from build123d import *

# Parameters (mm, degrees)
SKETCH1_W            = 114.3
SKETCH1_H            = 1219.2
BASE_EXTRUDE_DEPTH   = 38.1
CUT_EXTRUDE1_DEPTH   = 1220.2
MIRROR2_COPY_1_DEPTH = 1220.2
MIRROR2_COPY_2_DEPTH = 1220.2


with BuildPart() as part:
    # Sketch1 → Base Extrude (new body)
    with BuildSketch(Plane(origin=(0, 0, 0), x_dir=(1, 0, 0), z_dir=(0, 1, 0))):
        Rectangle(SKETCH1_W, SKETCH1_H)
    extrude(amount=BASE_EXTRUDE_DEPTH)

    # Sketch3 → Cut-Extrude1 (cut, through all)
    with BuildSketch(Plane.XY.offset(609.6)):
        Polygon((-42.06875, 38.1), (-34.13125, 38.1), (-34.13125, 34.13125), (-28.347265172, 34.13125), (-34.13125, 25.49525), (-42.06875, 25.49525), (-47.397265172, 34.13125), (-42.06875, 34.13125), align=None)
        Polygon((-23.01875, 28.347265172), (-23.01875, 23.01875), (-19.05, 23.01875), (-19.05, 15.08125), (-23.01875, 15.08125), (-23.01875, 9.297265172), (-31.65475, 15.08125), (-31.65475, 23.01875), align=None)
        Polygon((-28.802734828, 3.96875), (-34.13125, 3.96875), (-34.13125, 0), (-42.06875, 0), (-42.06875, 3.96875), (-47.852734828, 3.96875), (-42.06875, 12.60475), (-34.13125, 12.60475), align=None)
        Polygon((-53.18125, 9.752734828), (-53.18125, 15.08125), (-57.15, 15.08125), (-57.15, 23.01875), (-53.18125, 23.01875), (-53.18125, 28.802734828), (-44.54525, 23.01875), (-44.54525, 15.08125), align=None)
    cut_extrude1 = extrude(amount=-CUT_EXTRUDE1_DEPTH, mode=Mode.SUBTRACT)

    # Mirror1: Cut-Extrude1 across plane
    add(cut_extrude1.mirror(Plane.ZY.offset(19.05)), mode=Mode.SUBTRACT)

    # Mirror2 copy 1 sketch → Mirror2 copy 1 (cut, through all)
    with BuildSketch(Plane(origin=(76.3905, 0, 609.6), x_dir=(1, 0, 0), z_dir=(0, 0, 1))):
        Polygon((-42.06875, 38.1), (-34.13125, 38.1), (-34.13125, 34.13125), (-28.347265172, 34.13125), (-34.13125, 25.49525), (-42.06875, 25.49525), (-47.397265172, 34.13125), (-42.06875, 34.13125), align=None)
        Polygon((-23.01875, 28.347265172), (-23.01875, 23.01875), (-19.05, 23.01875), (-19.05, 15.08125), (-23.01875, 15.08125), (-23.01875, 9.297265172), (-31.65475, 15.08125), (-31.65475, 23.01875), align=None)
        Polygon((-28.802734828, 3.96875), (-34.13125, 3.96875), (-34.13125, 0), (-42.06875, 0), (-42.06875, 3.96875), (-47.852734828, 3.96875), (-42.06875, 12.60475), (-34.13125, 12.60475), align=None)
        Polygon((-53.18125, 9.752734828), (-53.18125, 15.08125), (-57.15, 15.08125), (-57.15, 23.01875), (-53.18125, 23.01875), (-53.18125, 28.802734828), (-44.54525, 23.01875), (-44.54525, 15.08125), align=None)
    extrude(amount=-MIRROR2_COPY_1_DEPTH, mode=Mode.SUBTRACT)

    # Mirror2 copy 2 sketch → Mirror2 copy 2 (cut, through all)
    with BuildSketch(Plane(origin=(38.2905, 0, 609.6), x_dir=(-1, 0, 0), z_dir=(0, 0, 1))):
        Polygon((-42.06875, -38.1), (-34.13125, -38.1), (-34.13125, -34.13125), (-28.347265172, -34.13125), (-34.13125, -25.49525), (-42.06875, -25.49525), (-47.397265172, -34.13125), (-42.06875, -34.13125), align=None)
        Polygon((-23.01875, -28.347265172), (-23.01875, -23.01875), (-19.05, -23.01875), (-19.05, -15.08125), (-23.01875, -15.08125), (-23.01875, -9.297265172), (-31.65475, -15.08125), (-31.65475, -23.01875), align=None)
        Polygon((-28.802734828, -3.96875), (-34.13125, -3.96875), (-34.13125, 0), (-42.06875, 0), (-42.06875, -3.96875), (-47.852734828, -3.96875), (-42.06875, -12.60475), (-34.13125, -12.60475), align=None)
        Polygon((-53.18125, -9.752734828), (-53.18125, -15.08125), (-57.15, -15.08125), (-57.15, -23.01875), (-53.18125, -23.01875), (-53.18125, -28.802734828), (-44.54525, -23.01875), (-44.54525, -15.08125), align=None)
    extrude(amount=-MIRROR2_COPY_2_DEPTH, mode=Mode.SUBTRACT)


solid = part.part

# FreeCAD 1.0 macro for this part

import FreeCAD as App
import Part
import Sketcher

V = App.Vector
Q = App.Units.Quantity

doc = App.newDocument("Part")
body = doc.addObject("PartDesign::Body", "Body")

# Sketch on XZ plane
sketch1 = body.newObject("Sketcher::SketchObject", "Sketch")
sketch1.AttachmentSupport = (doc.getObject("XZ_Plane"), [""])
sketch1.MapMode = "FlatFace"
sketch1.addGeometry(Part.LineSegment(V(-57, -610, 0), V(-57, 610, 0)), False)
sketch1.addGeometry(Part.LineSegment(V(-57, 610, 0), V(57, 610, 0)), False)
sketch1.addGeometry(Part.LineSegment(V(57, 610, 0), V(57, -610, 0)), False)
sketch1.addGeometry(Part.LineSegment(V(57, -610, 0), V(-57, -610, 0)), False)
sketch1.addConstraint(Sketcher.Constraint("Coincident", 0, 2, 1, 1))
sketch1.addConstraint(Sketcher.Constraint("Coincident", 1, 2, 2, 1))
sketch1.addConstraint(Sketcher.Constraint("Coincident", 2, 2, 3, 1))
sketch1.addConstraint(Sketcher.Constraint("Coincident", 3, 2, 0, 1))
sketch1.addConstraint(Sketcher.Constraint("Vertical", 0))
sketch1.addConstraint(Sketcher.Constraint("Horizontal", 1))
sketch1.addConstraint(Sketcher.Constraint("Vertical", 2))
sketch1.addConstraint(Sketcher.Constraint("Horizontal", 3))
sketch1.addConstraint(Sketcher.Constraint("Symmetric", 0, 2, 2, 2, -1, 1))
sketch1.addConstraint(Sketcher.Constraint("DistanceY", 0, 1, 0, 2, Q("48 in")))
sketch1.addConstraint(Sketcher.Constraint("DistanceX", 1, 1, 1, 2, Q("4.5 in")))
pad1 = body.newObject("PartDesign::Pad", "Pad")
pad1.Profile = sketch1
pad1.Length = Q("1.5 in")
pad1.Reversed = True

# Sketch on XY plane
sketch2 = body.newObject("Sketcher::SketchObject", "Sketch001")
sketch2.AttachmentSupport = (doc.getObject("XY_Plane"), [""])
sketch2.MapMode = "FlatFace"
sketch2.AttachmentOffset = App.Placement(V(0, 0, 24 * 25.4), App.Rotation())
sketch2.addGeometry(Part.LineSegment(V(-34.1, 38.1, 0), V(-42.1, 38.1, 0)), False)
sketch2.addGeometry(Part.LineSegment(V(-42.1, 38.1, 0), V(-42.1, 34.1, 0)), False)
sketch2.addGeometry(Part.LineSegment(V(-42.1, 34.1, 0), V(-47.4, 34.1, 0)), False)
sketch2.addGeometry(Part.LineSegment(V(-47.4, 34.1, 0), V(-42.1, 25.5, 0)), False)
sketch2.addGeometry(Part.LineSegment(V(-42.1, 25.5, 0), V(-34.1, 25.5, 0)), False)
sketch2.addGeometry(Part.LineSegment(V(-34.1, 25.5, 0), V(-28.3, 34.1, 0)), False)
sketch2.addGeometry(Part.LineSegment(V(-28.3, 34.1, 0), V(-34.1, 34.1, 0)), False)
sketch2.addGeometry(Part.LineSegment(V(-34.1, 34.1, 0), V(-34.1, 38.1, 0)), False)
sketch2.addGeometry(Part.LineSegment(V(-23, 23, 0), V(-23, 28.3, 0)), False)
sketch2.addGeometry(Part.LineSegment(V(-23, 28.3, 0), V(-31.7, 23, 0)), False)
sketch2.addGeometry(Part.LineSegment(V(-31.7, 23, 0), V(-31.7, 15.1, 0)), False)
sketch2.addGeometry(Part.LineSegment(V(-31.7, 15.1, 0), V(-23, 9.3, 0)), False)
sketch2.addGeometry(Part.LineSegment(V(-23, 9.3, 0), V(-23, 15.1, 0)), False)
sketch2.addGeometry(Part.LineSegment(V(-23, 15.1, 0), V(-19.1, 15.1, 0)), False)
sketch2.addGeometry(Part.LineSegment(V(-19.1, 15.1, 0), V(-19.1, 23, 0)), False)
sketch2.addGeometry(Part.LineSegment(V(-19.1, 23, 0), V(-23, 23, 0)), False)
sketch2.addGeometry(Part.LineSegment(V(-34.1, 4, 0), V(-28.8, 4, 0)), False)
sketch2.addGeometry(Part.LineSegment(V(-28.8, 4, 0), V(-34.1, 12.6, 0)), False)
sketch2.addGeometry(Part.LineSegment(V(-34.1, 12.6, 0), V(-42.1, 12.6, 0)), False)
sketch2.addGeometry(Part.LineSegment(V(-42.1, 12.6, 0), V(-47.9, 4, 0)), False)
sketch2.addGeometry(Part.LineSegment(V(-47.9, 4, 0), V(-42.1, 4, 0)), False)
sketch2.addGeometry(Part.LineSegment(V(-42.1, 4, 0), V(-42.1, 0, 0)), False)
sketch2.addGeometry(Part.LineSegment(V(-42.1, 0, 0), V(-34.1, 0, 0)), False)
sketch2.addGeometry(Part.LineSegment(V(-34.1, 0, 0), V(-34.1, 4, 0)), False)
sketch2.addGeometry(Part.LineSegment(V(-53.2, 15.1, 0), V(-53.2, 9.8, 0)), False)
sketch2.addGeometry(Part.LineSegment(V(-53.2, 9.8, 0), V(-44.5, 15.1, 0)), False)
sketch2.addGeometry(Part.LineSegment(V(-44.5, 15.1, 0), V(-44.5, 23, 0)), False)
sketch2.addGeometry(Part.LineSegment(V(-44.5, 23, 0), V(-53.2, 28.8, 0)), False)
sketch2.addGeometry(Part.LineSegment(V(-53.2, 28.8, 0), V(-53.2, 23, 0)), False)
sketch2.addGeometry(Part.LineSegment(V(-53.2, 23, 0), V(-57.1, 23, 0)), False)
sketch2.addGeometry(Part.LineSegment(V(-57.1, 23, 0), V(-57.1, 15.1, 0)), False)
sketch2.addGeometry(Part.LineSegment(V(-57.1, 15.1, 0), V(-53.2, 15.1, 0)), False)
sketch2.addConstraint(Sketcher.Constraint("Coincident", 0, 2, 1, 1))
sketch2.addConstraint(Sketcher.Constraint("Coincident", 1, 2, 2, 1))
sketch2.addConstraint(Sketcher.Constraint("Coincident", 2, 2, 3, 1))
sketch2.addConstraint(Sketcher.Constraint("Coincident", 3, 2, 4, 1))
sketch2.addConstraint(Sketcher.Constraint("Coincident", 4, 2, 5, 1))
sketch2.addConstraint(Sketcher.Constraint("Coincident", 5, 2, 6, 1))
sketch2.addConstraint(Sketcher.Constraint("Coincident", 6, 2, 7, 1))
sketch2.addConstraint(Sketcher.Constraint("Coincident", 7, 2, 0, 1))
sketch2.addConstraint(Sketcher.Constraint("Coincident", 8, 2, 9, 1))
sketch2.addConstraint(Sketcher.Constraint("Coincident", 9, 2, 10, 1))
sketch2.addConstraint(Sketcher.Constraint("Coincident", 10, 2, 11, 1))
sketch2.addConstraint(Sketcher.Constraint("Coincident", 11, 2, 12, 1))
sketch2.addConstraint(Sketcher.Constraint("Coincident", 12, 2, 13, 1))
sketch2.addConstraint(Sketcher.Constraint("Coincident", 13, 2, 14, 1))
sketch2.addConstraint(Sketcher.Constraint("Coincident", 14, 2, 15, 1))
sketch2.addConstraint(Sketcher.Constraint("Coincident", 15, 2, 8, 1))
sketch2.addConstraint(Sketcher.Constraint("Coincident", 16, 2, 17, 1))
sketch2.addConstraint(Sketcher.Constraint("Coincident", 17, 2, 18, 1))
sketch2.addConstraint(Sketcher.Constraint("Coincident", 18, 2, 19, 1))
sketch2.addConstraint(Sketcher.Constraint("Coincident", 19, 2, 20, 1))
sketch2.addConstraint(Sketcher.Constraint("Coincident", 20, 2, 21, 1))
sketch2.addConstraint(Sketcher.Constraint("Coincident", 21, 2, 22, 1))
sketch2.addConstraint(Sketcher.Constraint("Coincident", 22, 2, 23, 1))
sketch2.addConstraint(Sketcher.Constraint("Coincident", 23, 2, 16, 1))
sketch2.addConstraint(Sketcher.Constraint("Coincident", 24, 2, 25, 1))
sketch2.addConstraint(Sketcher.Constraint("Coincident", 25, 2, 26, 1))
sketch2.addConstraint(Sketcher.Constraint("Coincident", 26, 2, 27, 1))
sketch2.addConstraint(Sketcher.Constraint("Coincident", 27, 2, 28, 1))
sketch2.addConstraint(Sketcher.Constraint("Coincident", 28, 2, 29, 1))
sketch2.addConstraint(Sketcher.Constraint("Coincident", 29, 2, 30, 1))
sketch2.addConstraint(Sketcher.Constraint("Coincident", 30, 2, 31, 1))
sketch2.addConstraint(Sketcher.Constraint("Coincident", 31, 2, 24, 1))
sketch2.addConstraint(Sketcher.Constraint("Horizontal", 0))
sketch2.addConstraint(Sketcher.Constraint("Vertical", 1))
sketch2.addConstraint(Sketcher.Constraint("Horizontal", 2))
sketch2.addConstraint(Sketcher.Constraint("Horizontal", 4))
sketch2.addConstraint(Sketcher.Constraint("Horizontal", 6))
sketch2.addConstraint(Sketcher.Constraint("Vertical", 7))
sketch2.addConstraint(Sketcher.Constraint("Vertical", 8))
sketch2.addConstraint(Sketcher.Constraint("Vertical", 10))
sketch2.addConstraint(Sketcher.Constraint("Vertical", 12))
sketch2.addConstraint(Sketcher.Constraint("Horizontal", 13))
sketch2.addConstraint(Sketcher.Constraint("Vertical", 14))
sketch2.addConstraint(Sketcher.Constraint("Horizontal", 15))
sketch2.addConstraint(Sketcher.Constraint("Horizontal", 16))
sketch2.addConstraint(Sketcher.Constraint("Horizontal", 18))
sketch2.addConstraint(Sketcher.Constraint("Horizontal", 20))
sketch2.addConstraint(Sketcher.Constraint("Vertical", 21))
sketch2.addConstraint(Sketcher.Constraint("Horizontal", 22))
sketch2.addConstraint(Sketcher.Constraint("Vertical", 23))
sketch2.addConstraint(Sketcher.Constraint("Vertical", 24))
sketch2.addConstraint(Sketcher.Constraint("Vertical", 26))
sketch2.addConstraint(Sketcher.Constraint("Vertical", 28))
sketch2.addConstraint(Sketcher.Constraint("Horizontal", 29))
sketch2.addConstraint(Sketcher.Constraint("Vertical", 30))
sketch2.addConstraint(Sketcher.Constraint("Horizontal", 31))
sketch2.addConstraint(Sketcher.Constraint("PointOnObject", 21, 2, -1))
sketch2.addConstraint(Sketcher.Constraint("Perpendicular", 3, 9))
sketch2.addConstraint(Sketcher.Constraint("Perpendicular", 5, 11))
sketch2.addConstraint(Sketcher.Constraint("Perpendicular", 9, 17))
sketch2.addConstraint(Sketcher.Constraint("Perpendicular", 11, 19))
sketch2.addConstraint(Sketcher.Constraint("Perpendicular", 17, 25))
sketch2.addConstraint(Sketcher.Constraint("Perpendicular", 19, 27))
sketch2.addConstraint(Sketcher.Constraint("Horizontal", 2, 2, 5, 2))
sketch2.addConstraint(Sketcher.Constraint("Horizontal", 10, 2, 12, 2))
sketch2.addConstraint(Sketcher.Constraint("Horizontal", 9, 2, 14, 2))
sketch2.addConstraint(Sketcher.Constraint("Horizontal", 16, 2, 19, 2))
sketch2.addConstraint(Sketcher.Constraint("Horizontal", 13, 2, 25, 2))
sketch2.addConstraint(Sketcher.Constraint("Horizontal", 15, 2, 26, 2))
sketch2.addConstraint(Sketcher.Constraint("Horizontal", 26, 2, 28, 2))
sketch2.addConstraint(Sketcher.Constraint("Horizontal", 25, 2, 30, 2))
sketch2.addConstraint(Sketcher.Constraint("Vertical", 1, 2, 3, 2))
sketch2.addConstraint(Sketcher.Constraint("Vertical", 4, 2, 6, 2))
sketch2.addConstraint(Sketcher.Constraint("Vertical", 8, 2, 11, 2))
sketch2.addConstraint(Sketcher.Constraint("Vertical", 7, 2, 17, 2))
sketch2.addConstraint(Sketcher.Constraint("Vertical", 3, 2, 18, 2))
sketch2.addConstraint(Sketcher.Constraint("Vertical", 18, 2, 20, 2))
sketch2.addConstraint(Sketcher.Constraint("Vertical", 17, 2, 22, 2))
sketch2.addConstraint(Sketcher.Constraint("Vertical", 24, 2, 27, 2))
sketch2.addConstraint(Sketcher.Constraint("Equal", 2, 16))
sketch2.addConstraint(Sketcher.Constraint("Equal", 15, 29))
sketch2.addConstraint(Sketcher.Constraint("Equal", 31, 1))
sketch2.addConstraint(Sketcher.Constraint("Equal", 16, 8))
sketch2.addConstraint(Sketcher.Constraint("Equal", 22, 10))
sketch2.addConstraint(Sketcher.Constraint("Equal", 7, 21))
sketch2.addConstraint(Sketcher.Constraint("Equal", 8, 24))
sketch2.addConstraint(Sketcher.Constraint("DistanceY", -1, 1, 0, 2, Q("1.5 in")))
sketch2.addConstraint(Sketcher.Constraint("DistanceX", 0, 2, 0, 1, Q("0.3125 in")))
sketch2.addConstraint(Sketcher.Constraint("DistanceX", 13, 1, 13, 2, Q("0.15625 in")))
sketch2.addConstraint(Sketcher.Constraint("DistanceX", 13, 2, -1, 1, Q("0.75 in")))
sketch2.addConstraint(Sketcher.Constraint("DistanceX", 29, 2, -1, 1, Q("2.25 in")))
sketch2.addConstraint(Sketcher.Constraint("DistanceY", 3, 2, 1, 2, Q("0.34 in")))
sketch2.addConstraint(Sketcher.Constraint("DistanceX", 2, 2, 5, 2, Q("0.75 in")))
sketch2.addConstraint(Sketcher.Constraint("DistanceX", 3, 2, 8, 2, Q("0.75 in")))
sketch2.addConstraint(Sketcher.Constraint("DistanceY", 10, 2, 4, 2, Q("0.41 in")))
sketch2.addConstraint(Sketcher.Constraint("Distance", 3, Q("10.147589 mm")))
pocket1 = body.newObject("PartDesign::Pocket", "Pocket")
pocket1.Profile = sketch2
pocket1.Type = "ThroughAll"
doc.recompute()

datumplane = body.newObject("PartDesign::Plane", "DatumPlane")
datumplane.AttachmentSupport = (doc.getObject("YZ_Plane"), [""])
datumplane.MapMode = "FlatFace"
datumplane.AttachmentOffset = App.Placement(V(0, 0, -0.75 * 25.4), App.Rotation())
mirrored = body.newObject("PartDesign::Mirrored", "Mirrored")
mirrored.Originals = [pocket1]
mirrored.MirrorPlane = (datumplane, [""])
body.Tip = mirrored

# Sketch on XY plane
sketch3 = body.newObject("Sketcher::SketchObject", "Sketch002")
sketch3.AttachmentSupport = (doc.getObject("XY_Plane"), [""])
sketch3.MapMode = "FlatFace"
sketch3.AttachmentOffset = App.Placement(V(0, 0, 24 * 25.4), App.Rotation())
sketch3.addGeometry(Part.LineSegment(V(42.3, 38.1, 0), V(34.3, 38.1, 0)), False)
sketch3.addGeometry(Part.LineSegment(V(34.3, 38.1, 0), V(34.3, 34.1, 0)), False)
sketch3.addGeometry(Part.LineSegment(V(34.3, 34.1, 0), V(29, 34.1, 0)), False)
sketch3.addGeometry(Part.LineSegment(V(29, 34.1, 0), V(34.3, 25.5, 0)), False)
sketch3.addGeometry(Part.LineSegment(V(34.3, 25.5, 0), V(42.3, 25.5, 0)), False)
sketch3.addGeometry(Part.LineSegment(V(42.3, 25.5, 0), V(48, 34.1, 0)), False)
sketch3.addGeometry(Part.LineSegment(V(48, 34.1, 0), V(42.3, 34.1, 0)), False)
sketch3.addGeometry(Part.LineSegment(V(42.3, 34.1, 0), V(42.3, 38.1, 0)), False)
sketch3.addGeometry(Part.LineSegment(V(53.4, 23, 0), V(53.4, 28.3, 0)), False)
sketch3.addGeometry(Part.LineSegment(V(53.4, 28.3, 0), V(44.7, 23, 0)), False)
sketch3.addGeometry(Part.LineSegment(V(44.7, 23, 0), V(44.7, 15.1, 0)), False)
sketch3.addGeometry(Part.LineSegment(V(44.7, 15.1, 0), V(53.4, 9.3, 0)), False)
sketch3.addGeometry(Part.LineSegment(V(53.4, 9.3, 0), V(53.4, 15.1, 0)), False)
sketch3.addGeometry(Part.LineSegment(V(53.4, 15.1, 0), V(57.3, 15.1, 0)), False)
sketch3.addGeometry(Part.LineSegment(V(57.3, 15.1, 0), V(57.3, 23, 0)), False)
sketch3.addGeometry(Part.LineSegment(V(57.3, 23, 0), V(53.4, 23, 0)), False)
sketch3.addGeometry(Part.LineSegment(V(42.3, 4, 0), V(47.6, 4, 0)), False)
sketch3.addGeometry(Part.LineSegment(V(47.6, 4, 0), V(42.3, 12.6, 0)), False)
sketch3.addGeometry(Part.LineSegment(V(42.3, 12.6, 0), V(34.3, 12.6, 0)), False)
sketch3.addGeometry(Part.LineSegment(V(34.3, 12.6, 0), V(28.5, 4, 0)), False)
sketch3.addGeometry(Part.LineSegment(V(28.5, 4, 0), V(34.3, 4, 0)), False)
sketch3.addGeometry(Part.LineSegment(V(34.3, 4, 0), V(34.3, 0, 0)), False)
sketch3.addGeometry(Part.LineSegment(V(34.3, 0, 0), V(42.3, 0, 0)), False)
sketch3.addGeometry(Part.LineSegment(V(42.3, 0, 0), V(42.3, 4, 0)), False)
sketch3.addGeometry(Part.LineSegment(V(23.2, 15.1, 0), V(23.2, 9.8, 0)), False)
sketch3.addGeometry(Part.LineSegment(V(23.2, 9.8, 0), V(31.8, 15.1, 0)), False)
sketch3.addGeometry(Part.LineSegment(V(31.8, 15.1, 0), V(31.8, 23, 0)), False)
sketch3.addGeometry(Part.LineSegment(V(31.8, 23, 0), V(23.2, 28.8, 0)), False)
sketch3.addGeometry(Part.LineSegment(V(23.2, 28.8, 0), V(23.2, 23, 0)), False)
sketch3.addGeometry(Part.LineSegment(V(23.2, 23, 0), V(19.2, 23, 0)), False)
sketch3.addGeometry(Part.LineSegment(V(19.2, 23, 0), V(19.2, 15.1, 0)), False)
sketch3.addGeometry(Part.LineSegment(V(19.2, 15.1, 0), V(23.2, 15.1, 0)), False)
sketch3.addConstraint(Sketcher.Constraint("Coincident", 0, 2, 1, 1))
sketch3.addConstraint(Sketcher.Constraint("Coincident", 1, 2, 2, 1))
sketch3.addConstraint(Sketcher.Constraint("Coincident", 2, 2, 3, 1))
sketch3.addConstraint(Sketcher.Constraint("Coincident", 3, 2, 4, 1))
sketch3.addConstraint(Sketcher.Constraint("Coincident", 4, 2, 5, 1))
sketch3.addConstraint(Sketcher.Constraint("Coincident", 5, 2, 6, 1))
sketch3.addConstraint(Sketcher.Constraint("Coincident", 6, 2, 7, 1))
sketch3.addConstraint(Sketcher.Constraint("Coincident", 7, 2, 0, 1))
sketch3.addConstraint(Sketcher.Constraint("Coincident", 8, 2, 9, 1))
sketch3.addConstraint(Sketcher.Constraint("Coincident", 9, 2, 10, 1))
sketch3.addConstraint(Sketcher.Constraint("Coincident", 10, 2, 11, 1))
sketch3.addConstraint(Sketcher.Constraint("Coincident", 11, 2, 12, 1))
sketch3.addConstraint(Sketcher.Constraint("Coincident", 12, 2, 13, 1))
sketch3.addConstraint(Sketcher.Constraint("Coincident", 13, 2, 14, 1))
sketch3.addConstraint(Sketcher.Constraint("Coincident", 14, 2, 15, 1))
sketch3.addConstraint(Sketcher.Constraint("Coincident", 15, 2, 8, 1))
sketch3.addConstraint(Sketcher.Constraint("Coincident", 16, 2, 17, 1))
sketch3.addConstraint(Sketcher.Constraint("Coincident", 17, 2, 18, 1))
sketch3.addConstraint(Sketcher.Constraint("Coincident", 18, 2, 19, 1))
sketch3.addConstraint(Sketcher.Constraint("Coincident", 19, 2, 20, 1))
sketch3.addConstraint(Sketcher.Constraint("Coincident", 20, 2, 21, 1))
sketch3.addConstraint(Sketcher.Constraint("Coincident", 21, 2, 22, 1))
sketch3.addConstraint(Sketcher.Constraint("Coincident", 22, 2, 23, 1))
sketch3.addConstraint(Sketcher.Constraint("Coincident", 23, 2, 16, 1))
sketch3.addConstraint(Sketcher.Constraint("Coincident", 24, 2, 25, 1))
sketch3.addConstraint(Sketcher.Constraint("Coincident", 25, 2, 26, 1))
sketch3.addConstraint(Sketcher.Constraint("Coincident", 26, 2, 27, 1))
sketch3.addConstraint(Sketcher.Constraint("Coincident", 27, 2, 28, 1))
sketch3.addConstraint(Sketcher.Constraint("Coincident", 28, 2, 29, 1))
sketch3.addConstraint(Sketcher.Constraint("Coincident", 29, 2, 30, 1))
sketch3.addConstraint(Sketcher.Constraint("Coincident", 30, 2, 31, 1))
sketch3.addConstraint(Sketcher.Constraint("Coincident", 31, 2, 24, 1))
sketch3.addConstraint(Sketcher.Constraint("Horizontal", 0))
sketch3.addConstraint(Sketcher.Constraint("Vertical", 1))
sketch3.addConstraint(Sketcher.Constraint("Horizontal", 2))
sketch3.addConstraint(Sketcher.Constraint("Horizontal", 4))
sketch3.addConstraint(Sketcher.Constraint("Horizontal", 6))
sketch3.addConstraint(Sketcher.Constraint("Vertical", 7))
sketch3.addConstraint(Sketcher.Constraint("Vertical", 8))
sketch3.addConstraint(Sketcher.Constraint("Vertical", 10))
sketch3.addConstraint(Sketcher.Constraint("Vertical", 12))
sketch3.addConstraint(Sketcher.Constraint("Horizontal", 13))
sketch3.addConstraint(Sketcher.Constraint("Vertical", 14))
sketch3.addConstraint(Sketcher.Constraint("Horizontal", 15))
sketch3.addConstraint(Sketcher.Constraint("Horizontal", 16))
sketch3.addConstraint(Sketcher.Constraint("Horizontal", 18))
sketch3.addConstraint(Sketcher.Constraint("Horizontal", 20))
sketch3.addConstraint(Sketcher.Constraint("Vertical", 21))
sketch3.addConstraint(Sketcher.Constraint("Horizontal", 22))
sketch3.addConstraint(Sketcher.Constraint("Vertical", 23))
sketch3.addConstraint(Sketcher.Constraint("Vertical", 24))
sketch3.addConstraint(Sketcher.Constraint("Vertical", 26))
sketch3.addConstraint(Sketcher.Constraint("Vertical", 28))
sketch3.addConstraint(Sketcher.Constraint("Horizontal", 29))
sketch3.addConstraint(Sketcher.Constraint("Vertical", 30))
sketch3.addConstraint(Sketcher.Constraint("Horizontal", 31))
sketch3.addConstraint(Sketcher.Constraint("PointOnObject", 21, 2, -1))
sketch3.addConstraint(Sketcher.Constraint("Perpendicular", 3, 9))
sketch3.addConstraint(Sketcher.Constraint("Perpendicular", 5, 11))
sketch3.addConstraint(Sketcher.Constraint("Perpendicular", 9, 17))
sketch3.addConstraint(Sketcher.Constraint("Perpendicular", 11, 19))
sketch3.addConstraint(Sketcher.Constraint("Perpendicular", 17, 25))
sketch3.addConstraint(Sketcher.Constraint("Perpendicular", 19, 27))
sketch3.addConstraint(Sketcher.Constraint("Horizontal", 2, 2, 5, 2))
sketch3.addConstraint(Sketcher.Constraint("Horizontal", 10, 2, 12, 2))
sketch3.addConstraint(Sketcher.Constraint("Horizontal", 9, 2, 14, 2))
sketch3.addConstraint(Sketcher.Constraint("Horizontal", 16, 2, 19, 2))
sketch3.addConstraint(Sketcher.Constraint("Horizontal", 13, 2, 25, 2))
sketch3.addConstraint(Sketcher.Constraint("Horizontal", 15, 2, 26, 2))
sketch3.addConstraint(Sketcher.Constraint("Horizontal", 26, 2, 28, 2))
sketch3.addConstraint(Sketcher.Constraint("Horizontal", 25, 2, 30, 2))
sketch3.addConstraint(Sketcher.Constraint("Vertical", 1, 2, 3, 2))
sketch3.addConstraint(Sketcher.Constraint("Vertical", 4, 2, 6, 2))
sketch3.addConstraint(Sketcher.Constraint("Vertical", 8, 2, 11, 2))
sketch3.addConstraint(Sketcher.Constraint("Vertical", 7, 2, 17, 2))
sketch3.addConstraint(Sketcher.Constraint("Vertical", 3, 2, 18, 2))
sketch3.addConstraint(Sketcher.Constraint("Vertical", 18, 2, 20, 2))
sketch3.addConstraint(Sketcher.Constraint("Vertical", 17, 2, 22, 2))
sketch3.addConstraint(Sketcher.Constraint("Vertical", 24, 2, 27, 2))
sketch3.addConstraint(Sketcher.Constraint("Equal", 2, 16))
sketch3.addConstraint(Sketcher.Constraint("Equal", 15, 29))
sketch3.addConstraint(Sketcher.Constraint("Equal", 31, 1))
sketch3.addConstraint(Sketcher.Constraint("Equal", 16, 8))
sketch3.addConstraint(Sketcher.Constraint("Equal", 22, 10))
sketch3.addConstraint(Sketcher.Constraint("Equal", 7, 21))
sketch3.addConstraint(Sketcher.Constraint("Equal", 8, 24))
sketch3.addConstraint(Sketcher.Constraint("DistanceY", -1, 1, 0, 2, Q("1.5 in")))
sketch3.addConstraint(Sketcher.Constraint("DistanceX", 0, 2, 0, 1, Q("0.3125 in")))
sketch3.addConstraint(Sketcher.Constraint("DistanceX", 13, 1, 13, 2, Q("0.15625 in")))
sketch3.addConstraint(Sketcher.Constraint("DistanceY", 3, 2, 1, 2, Q("0.34 in")))
sketch3.addConstraint(Sketcher.Constraint("DistanceX", 2, 2, 5, 2, Q("0.75 in")))
sketch3.addConstraint(Sketcher.Constraint("DistanceX", 3, 2, 8, 2, Q("0.75 in")))
sketch3.addConstraint(Sketcher.Constraint("DistanceY", 10, 2, 4, 2, Q("0.41 in")))
sketch3.addConstraint(Sketcher.Constraint("DistanceX", 24, 2, 17, 2, Q("0.75 in")))
sketch3.addConstraint(Sketcher.Constraint("DistanceX", -1, 1, 13, 2, Q("2.2575 in")))
sketch3.addConstraint(Sketcher.Constraint("Distance", 3, Q("10.147589 mm")))
pocket2 = body.newObject("PartDesign::Pocket", "Pocket001")
pocket2.Profile = sketch3
pocket2.Type = "ThroughAll"

# Sketch on XY plane
sketch4 = body.newObject("Sketcher::SketchObject", "Sketch003")
sketch4.AttachmentSupport = (doc.getObject("XY_Plane"), [""])
sketch4.MapMode = "FlatFace"
sketch4.AttachmentOffset = App.Placement(V(0, 0, 24 * 25.4), App.Rotation())
sketch4.addGeometry(Part.LineSegment(V(80.4, 38.1, 0), V(72.4, 38.1, 0)), False)
sketch4.addGeometry(Part.LineSegment(V(72.4, 38.1, 0), V(72.4, 34.1, 0)), False)
sketch4.addGeometry(Part.LineSegment(V(72.4, 34.1, 0), V(66.6, 34.1, 0)), False)
sketch4.addGeometry(Part.LineSegment(V(66.6, 34.1, 0), V(72.4, 25.5, 0)), False)
sketch4.addGeometry(Part.LineSegment(V(72.4, 25.5, 0), V(80.4, 25.5, 0)), False)
sketch4.addGeometry(Part.LineSegment(V(80.4, 25.5, 0), V(85.7, 34.1, 0)), False)
sketch4.addGeometry(Part.LineSegment(V(85.7, 34.1, 0), V(80.4, 34.1, 0)), False)
sketch4.addGeometry(Part.LineSegment(V(80.4, 34.1, 0), V(80.4, 38.1, 0)), False)
sketch4.addGeometry(Part.LineSegment(V(61.3, 28.3, 0), V(61.3, 23, 0)), False)
sketch4.addGeometry(Part.LineSegment(V(61.3, 23, 0), V(57.3, 23, 0)), False)
sketch4.addGeometry(Part.LineSegment(V(57.3, 23, 0), V(57.3, 15.1, 0)), False)
sketch4.addGeometry(Part.LineSegment(V(57.3, 15.1, 0), V(61.3, 15.1, 0)), False)
sketch4.addGeometry(Part.LineSegment(V(61.3, 15.1, 0), V(61.3, 9.3, 0)), False)
sketch4.addGeometry(Part.LineSegment(V(61.3, 9.3, 0), V(69.9, 15.1, 0)), False)
sketch4.addGeometry(Part.LineSegment(V(69.9, 15.1, 0), V(69.9, 23, 0)), False)
sketch4.addGeometry(Part.LineSegment(V(69.9, 23, 0), V(61.3, 28.3, 0)), False)
sketch4.addGeometry(Part.LineSegment(V(67.1, 4, 0), V(72.4, 4, 0)), False)
sketch4.addGeometry(Part.LineSegment(V(72.4, 4, 0), V(72.4, 0, 0)), False)
sketch4.addGeometry(Part.LineSegment(V(72.4, 0, 0), V(80.4, 0, 0)), False)
sketch4.addGeometry(Part.LineSegment(V(80.4, 0, 0), V(80.4, 4, 0)), False)
sketch4.addGeometry(Part.LineSegment(V(80.4, 4, 0), V(86.1, 4, 0)), False)
sketch4.addGeometry(Part.LineSegment(V(86.1, 4, 0), V(80.4, 12.6, 0)), False)
sketch4.addGeometry(Part.LineSegment(V(80.4, 12.6, 0), V(72.4, 12.6, 0)), False)
sketch4.addGeometry(Part.LineSegment(V(72.4, 12.6, 0), V(67.1, 4, 0)), False)
sketch4.addGeometry(Part.LineSegment(V(91.5, 9.8, 0), V(91.5, 15.1, 0)), False)
sketch4.addGeometry(Part.LineSegment(V(91.5, 15.1, 0), V(95.4, 15.1, 0)), False)
sketch4.addGeometry(Part.LineSegment(V(95.4, 15.1, 0), V(95.4, 23, 0)), False)
sketch4.addGeometry(Part.LineSegment(V(95.4, 23, 0), V(91.5, 23, 0)), False)
sketch4.addGeometry(Part.LineSegment(V(91.5, 23, 0), V(91.5, 28.8, 0)), False)
sketch4.addGeometry(Part.LineSegment(V(91.5, 28.8, 0), V(82.8, 23, 0)), False)
sketch4.addGeometry(Part.LineSegment(V(82.8, 23, 0), V(82.8, 15.1, 0)), False)
sketch4.addGeometry(Part.LineSegment(V(82.8, 15.1, 0), V(91.5, 9.8, 0)), False)
sketch4.addConstraint(Sketcher.Constraint("Coincident", 0, 2, 1, 1))
sketch4.addConstraint(Sketcher.Constraint("Coincident", 1, 2, 2, 1))
sketch4.addConstraint(Sketcher.Constraint("Coincident", 2, 2, 3, 1))
sketch4.addConstraint(Sketcher.Constraint("Coincident", 3, 2, 4, 1))
sketch4.addConstraint(Sketcher.Constraint("Coincident", 4, 2, 5, 1))
sketch4.addConstraint(Sketcher.Constraint("Coincident", 5, 2, 6, 1))
sketch4.addConstraint(Sketcher.Constraint("Coincident", 6, 2, 7, 1))
sketch4.addConstraint(Sketcher.Constraint("Coincident", 7, 2, 0, 1))
sketch4.addConstraint(Sketcher.Constraint("Coincident", 8, 2, 9, 1))
sketch4.addConstraint(Sketcher.Constraint("Coincident", 9, 2, 10, 1))
sketch4.addConstraint(Sketcher.Constraint("Coincident", 10, 2, 11, 1))
sketch4.addConstraint(Sketcher.Constraint("Coincident", 11, 2, 12, 1))
sketch4.addConstraint(Sketcher.Constraint("Coincident", 12, 2, 13, 1))
sketch4.addConstraint(Sketcher.Constraint("Coincident", 13, 2, 14, 1))
sketch4.addConstraint(Sketcher.Constraint("Coincident", 14, 2, 15, 1))
sketch4.addConstraint(Sketcher.Constraint("Coincident", 15, 2, 8, 1))
sketch4.addConstraint(Sketcher.Constraint("Coincident", 16, 2, 17, 1))
sketch4.addConstraint(Sketcher.Constraint("Coincident", 17, 2, 18, 1))
sketch4.addConstraint(Sketcher.Constraint("Coincident", 18, 2, 19, 1))
sketch4.addConstraint(Sketcher.Constraint("Coincident", 19, 2, 20, 1))
sketch4.addConstraint(Sketcher.Constraint("Coincident", 20, 2, 21, 1))
sketch4.addConstraint(Sketcher.Constraint("Coincident", 21, 2, 22, 1))
sketch4.addConstraint(Sketcher.Constraint("Coincident", 22, 2, 23, 1))
sketch4.addConstraint(Sketcher.Constraint("Coincident", 23, 2, 16, 1))
sketch4.addConstraint(Sketcher.Constraint("Coincident", 24, 2, 25, 1))
sketch4.addConstraint(Sketcher.Constraint("Coincident", 25, 2, 26, 1))
sketch4.addConstraint(Sketcher.Constraint("Coincident", 26, 2, 27, 1))
sketch4.addConstraint(Sketcher.Constraint("Coincident", 27, 2, 28, 1))
sketch4.addConstraint(Sketcher.Constraint("Coincident", 28, 2, 29, 1))
sketch4.addConstraint(Sketcher.Constraint("Coincident", 29, 2, 30, 1))
sketch4.addConstraint(Sketcher.Constraint("Coincident", 30, 2, 31, 1))
sketch4.addConstraint(Sketcher.Constraint("Coincident", 31, 2, 24, 1))
sketch4.addConstraint(Sketcher.Constraint("Horizontal", 0))
sketch4.addConstraint(Sketcher.Constraint("Vertical", 1))
sketch4.addConstraint(Sketcher.Constraint("Horizontal", 2))
sketch4.addConstraint(Sketcher.Constraint("Horizontal", 4))
sketch4.addConstraint(Sketcher.Constraint("Horizontal", 6))
sketch4.addConstraint(Sketcher.Constraint("Vertical", 7))
sketch4.addConstraint(Sketcher.Constraint("Vertical", 8))
sketch4.addConstraint(Sketcher.Constraint("Horizontal", 9))
sketch4.addConstraint(Sketcher.Constraint("Vertical", 10))
sketch4.addConstraint(Sketcher.Constraint("Horizontal", 11))
sketch4.addConstraint(Sketcher.Constraint("Vertical", 12))
sketch4.addConstraint(Sketcher.Constraint("Vertical", 14))
sketch4.addConstraint(Sketcher.Constraint("Horizontal", 16))
sketch4.addConstraint(Sketcher.Constraint("Vertical", 17))
sketch4.addConstraint(Sketcher.Constraint("Horizontal", 18))
sketch4.addConstraint(Sketcher.Constraint("Vertical", 19))
sketch4.addConstraint(Sketcher.Constraint("Horizontal", 20))
sketch4.addConstraint(Sketcher.Constraint("Horizontal", 22))
sketch4.addConstraint(Sketcher.Constraint("Vertical", 24))
sketch4.addConstraint(Sketcher.Constraint("Horizontal", 25))
sketch4.addConstraint(Sketcher.Constraint("Vertical", 26))
sketch4.addConstraint(Sketcher.Constraint("Horizontal", 27))
sketch4.addConstraint(Sketcher.Constraint("Vertical", 28))
sketch4.addConstraint(Sketcher.Constraint("Vertical", 30))
sketch4.addConstraint(Sketcher.Constraint("PointOnObject", 17, 2, -1))
sketch4.addConstraint(Sketcher.Constraint("Perpendicular", 3, 13))
sketch4.addConstraint(Sketcher.Constraint("Perpendicular", 5, 15))
sketch4.addConstraint(Sketcher.Constraint("Perpendicular", 13, 21))
sketch4.addConstraint(Sketcher.Constraint("Perpendicular", 15, 23))
sketch4.addConstraint(Sketcher.Constraint("Perpendicular", 21, 29))
sketch4.addConstraint(Sketcher.Constraint("Perpendicular", 23, 31))
sketch4.addConstraint(Sketcher.Constraint("Horizontal", 2, 2, 5, 2))
sketch4.addConstraint(Sketcher.Constraint("Horizontal", 11, 2, 13, 2))
sketch4.addConstraint(Sketcher.Constraint("Horizontal", 9, 2, 14, 2))
sketch4.addConstraint(Sketcher.Constraint("Horizontal", 16, 2, 19, 2))
sketch4.addConstraint(Sketcher.Constraint("Horizontal", 13, 2, 24, 2))
sketch4.addConstraint(Sketcher.Constraint("Horizontal", 14, 2, 26, 2))
sketch4.addConstraint(Sketcher.Constraint("Horizontal", 27, 2, 29, 2))
sketch4.addConstraint(Sketcher.Constraint("Horizontal", 25, 2, 30, 2))
sketch4.addConstraint(Sketcher.Constraint("Vertical", 1, 2, 3, 2))
sketch4.addConstraint(Sketcher.Constraint("Vertical", 4, 2, 6, 2))
sketch4.addConstraint(Sketcher.Constraint("Vertical", 8, 2, 11, 2))
sketch4.addConstraint(Sketcher.Constraint("Vertical", 3, 2, 16, 2))
sketch4.addConstraint(Sketcher.Constraint("Vertical", 7, 2, 18, 2))
sketch4.addConstraint(Sketcher.Constraint("Vertical", 19, 2, 21, 2))
sketch4.addConstraint(Sketcher.Constraint("Vertical", 17, 2, 22, 2))
sketch4.addConstraint(Sketcher.Constraint("Vertical", 24, 2, 27, 2))
sketch4.addConstraint(Sketcher.Constraint("Equal", 6, 16))
sketch4.addConstraint(Sketcher.Constraint("Equal", 11, 25))
sketch4.addConstraint(Sketcher.Constraint("Equal", 27, 1))
sketch4.addConstraint(Sketcher.Constraint("Equal", 16, 8))
sketch4.addConstraint(Sketcher.Constraint("Equal", 22, 10))
sketch4.addConstraint(Sketcher.Constraint("Equal", 7, 17))
sketch4.addConstraint(Sketcher.Constraint("Equal", 8, 24))
sketch4.addConstraint(Sketcher.Constraint("DistanceY", -1, 1, 0, 2, Q("1.5 in")))
sketch4.addConstraint(Sketcher.Constraint("DistanceX", 0, 2, 0, 1, Q("0.3125 in")))
sketch4.addConstraint(Sketcher.Constraint("DistanceX", 9, 2, 9, 1, Q("0.15625 in")))
sketch4.addConstraint(Sketcher.Constraint("DistanceY", 3, 2, 1, 2, Q("0.34 in")))
sketch4.addConstraint(Sketcher.Constraint("DistanceX", 2, 2, 5, 2, Q("0.75 in")))
sketch4.addConstraint(Sketcher.Constraint("DistanceX", 8, 2, 4, 2, Q("0.75 in")))
sketch4.addConstraint(Sketcher.Constraint("DistanceY", 10, 2, 3, 2, Q("0.41 in")))
sketch4.addConstraint(Sketcher.Constraint("DistanceX", 3, 2, 29, 2, Q("0.41 in")))
sketch4.addConstraint(Sketcher.Constraint("DistanceX", -1, 1, 9, 2, Q("2.2575 in")))
sketch4.addConstraint(Sketcher.Constraint("Distance", 5, Q("10.147589 mm")))
pocket3 = body.newObject("PartDesign::Pocket", "Pocket002")
pocket3.Profile = sketch4
pocket3.Type = "ThroughAll"

doc.recompute()
